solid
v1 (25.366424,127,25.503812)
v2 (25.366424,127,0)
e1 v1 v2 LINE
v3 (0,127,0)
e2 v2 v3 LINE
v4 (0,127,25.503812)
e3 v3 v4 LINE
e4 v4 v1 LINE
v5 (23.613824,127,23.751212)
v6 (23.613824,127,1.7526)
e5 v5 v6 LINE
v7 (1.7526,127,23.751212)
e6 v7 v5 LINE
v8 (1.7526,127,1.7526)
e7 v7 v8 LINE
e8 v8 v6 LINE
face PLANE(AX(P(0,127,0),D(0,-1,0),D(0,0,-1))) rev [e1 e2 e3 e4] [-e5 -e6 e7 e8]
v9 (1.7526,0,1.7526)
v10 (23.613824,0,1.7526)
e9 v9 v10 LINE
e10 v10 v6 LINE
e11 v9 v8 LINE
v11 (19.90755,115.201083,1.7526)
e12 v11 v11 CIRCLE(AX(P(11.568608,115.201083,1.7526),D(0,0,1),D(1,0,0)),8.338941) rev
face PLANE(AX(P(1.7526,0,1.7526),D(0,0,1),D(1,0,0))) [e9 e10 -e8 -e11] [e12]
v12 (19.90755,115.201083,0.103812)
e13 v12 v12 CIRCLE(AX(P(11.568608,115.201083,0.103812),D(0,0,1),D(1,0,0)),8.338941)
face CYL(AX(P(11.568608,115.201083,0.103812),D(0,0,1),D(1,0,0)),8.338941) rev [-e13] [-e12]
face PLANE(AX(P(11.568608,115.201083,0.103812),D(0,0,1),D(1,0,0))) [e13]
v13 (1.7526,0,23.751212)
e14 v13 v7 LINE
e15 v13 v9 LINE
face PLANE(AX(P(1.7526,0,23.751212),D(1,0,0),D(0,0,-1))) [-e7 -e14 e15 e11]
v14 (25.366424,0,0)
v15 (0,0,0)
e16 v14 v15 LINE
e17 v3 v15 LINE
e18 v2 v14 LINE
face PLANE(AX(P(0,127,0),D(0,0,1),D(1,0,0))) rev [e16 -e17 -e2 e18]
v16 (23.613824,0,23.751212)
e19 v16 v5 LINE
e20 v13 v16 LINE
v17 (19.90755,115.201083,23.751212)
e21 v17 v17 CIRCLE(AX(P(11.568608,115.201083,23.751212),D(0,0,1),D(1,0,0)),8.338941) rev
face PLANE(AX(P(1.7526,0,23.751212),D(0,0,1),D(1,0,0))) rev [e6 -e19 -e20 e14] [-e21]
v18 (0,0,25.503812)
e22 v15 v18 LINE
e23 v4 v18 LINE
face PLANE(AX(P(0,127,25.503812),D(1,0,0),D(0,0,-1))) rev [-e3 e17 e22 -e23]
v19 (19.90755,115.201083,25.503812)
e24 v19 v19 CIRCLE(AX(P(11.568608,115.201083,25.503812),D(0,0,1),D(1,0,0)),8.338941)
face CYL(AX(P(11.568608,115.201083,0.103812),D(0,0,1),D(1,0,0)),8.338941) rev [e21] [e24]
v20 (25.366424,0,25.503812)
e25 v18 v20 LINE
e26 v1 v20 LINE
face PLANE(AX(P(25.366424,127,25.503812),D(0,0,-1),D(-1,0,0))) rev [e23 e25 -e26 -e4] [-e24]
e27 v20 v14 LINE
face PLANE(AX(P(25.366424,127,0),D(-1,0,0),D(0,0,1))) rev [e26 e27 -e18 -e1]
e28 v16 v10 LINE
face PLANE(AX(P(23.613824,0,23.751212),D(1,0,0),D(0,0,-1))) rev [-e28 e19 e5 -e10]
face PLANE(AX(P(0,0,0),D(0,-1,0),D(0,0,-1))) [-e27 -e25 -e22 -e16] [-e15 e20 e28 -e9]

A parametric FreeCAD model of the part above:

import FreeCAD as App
import Part
import Sketcher
Q = App.Units.Quantity


def add_polygon(sketch, points):
    """Adds a closed chain of lines whose ends are joined by coincident constraints."""
    first, n = sketch.GeometryCount, len(points)
    for a, b in zip(points, points[1:] + points[:1]):
        sketch.addGeometry(Part.LineSegment(App.Vector(*a, 0), App.Vector(*b, 0)), False)
    for i in range(n):
        sketch.addConstraint(Sketcher.Constraint("Coincident", first + i, 2, first + (i + 1) % n, 1))

doc = App.newDocument("Part")
params = doc.addObject("Spreadsheet::Sheet", "Params")
for row, (alias, value) in enumerate([
    ("pad1_length", "5 in"),
    ("pocket1_length", "1 in"),
    ("pocket2_length", "5 in"),
], start=1):
    params.set(f"A{row}", alias)
    params.set(f"B{row}", "=" + value)
    params.setAlias(f"B{row}", alias)

body = doc.addObject("PartDesign::Body", "Body")

# Sketch on XZ plane
sketch1 = body.newObject("Sketcher::SketchObject", "Sketch")
sketch1.AttachmentSupport = (doc.getObject("XZ_Plane"), [""])
sketch1.MapMode = "FlatFace"
add_polygon(sketch1, [(0, 0), (0, 26), (25, 26), (25, 0)])  # lines 0-3
sketch1.addConstraint([
    Sketcher.Constraint("Vertical", 0),
    Sketcher.Constraint("Horizontal", 1),
    Sketcher.Constraint("Vertical", 2),
    Sketcher.Constraint("Horizontal", 3),
    Sketcher.Constraint("Coincident", 3, 2, -1, 1),
    Sketcher.Constraint("DistanceY", 0, 1, 0, 2, Q("25.503812 mm")),
    Sketcher.Constraint("DistanceX", 1, 1, 1, 2, Q("25.366424 mm")),
])
pad1 = body.newObject("PartDesign::Pad", "Pad")
pad1.Profile = sketch1
pad1.setExpression("Length", "Params.pad1_length")
pad1.Reversed = True

# Sketch on XY plane
sketch2 = body.newObject("Sketcher::SketchObject", "Sketch001")
sketch2.AttachmentSupport = (doc.getObject("XY_Plane"), [""])
sketch2.MapMode = "FlatFace"
sketch2.AttachmentOffset = App.Placement(App.Vector(0, 0, 25.503812), App.Rotation())
sketch2.addGeometry(Part.Circle(App.Vector(12, 115, 0), App.Vector(0, 0, 1), 8), False)
sketch2.addConstraint([
    Sketcher.Constraint("Diameter", 0, Q("16.677883 mm")),
    Sketcher.Constraint("DistanceX", -1, 1, 0, 3, Q("11.568608 mm")),
    Sketcher.Constraint("DistanceY", -1, 1, 0, 3, Q("115.201083 mm")),
])
pocket1 = body.newObject("PartDesign::Pocket", "Pocket")
pocket1.Profile = sketch2
pocket1.setExpression("Length", "Params.pocket1_length")

# Sketch on XZ plane
sketch3 = body.newObject("Sketcher::SketchObject", "Sketch002")
sketch3.AttachmentSupport = (doc.getObject("XZ_Plane"), [""])
sketch3.MapMode = "FlatFace"
sketch3.AttachmentOffset = App.Placement(App.Vector(0, 0, -5 * 25.4), App.Rotation())
add_polygon(sketch3, [(2, 2), (2, 24), (24, 24), (24, 2)])  # lines 0-3
sketch3.addConstraint([
    Sketcher.Constraint("Vertical", 0),
    Sketcher.Constraint("Horizontal", 1),
    Sketcher.Constraint("Vertical", 2),
    Sketcher.Constraint("Horizontal", 3),
    Sketcher.Constraint("DistanceX", -1, 1, 0, 2, Q("0.069 in")),
    Sketcher.Constraint("DistanceY", -1, 1, 2, 2, Q("0.069 in")),
    Sketcher.Constraint("DistanceY", 0, 1, 0, 2, Q("21.998612 mm")),
    Sketcher.Constraint("DistanceX", 1, 1, 1, 2, Q("21.861224 mm")),
])
pocket2 = body.newObject("PartDesign::Pocket", "Pocket001")
pocket2.Profile = sketch3
pocket2.setExpression("Length", "Params.pocket2_length")
pocket2.Reversed = True

doc.recompute()
